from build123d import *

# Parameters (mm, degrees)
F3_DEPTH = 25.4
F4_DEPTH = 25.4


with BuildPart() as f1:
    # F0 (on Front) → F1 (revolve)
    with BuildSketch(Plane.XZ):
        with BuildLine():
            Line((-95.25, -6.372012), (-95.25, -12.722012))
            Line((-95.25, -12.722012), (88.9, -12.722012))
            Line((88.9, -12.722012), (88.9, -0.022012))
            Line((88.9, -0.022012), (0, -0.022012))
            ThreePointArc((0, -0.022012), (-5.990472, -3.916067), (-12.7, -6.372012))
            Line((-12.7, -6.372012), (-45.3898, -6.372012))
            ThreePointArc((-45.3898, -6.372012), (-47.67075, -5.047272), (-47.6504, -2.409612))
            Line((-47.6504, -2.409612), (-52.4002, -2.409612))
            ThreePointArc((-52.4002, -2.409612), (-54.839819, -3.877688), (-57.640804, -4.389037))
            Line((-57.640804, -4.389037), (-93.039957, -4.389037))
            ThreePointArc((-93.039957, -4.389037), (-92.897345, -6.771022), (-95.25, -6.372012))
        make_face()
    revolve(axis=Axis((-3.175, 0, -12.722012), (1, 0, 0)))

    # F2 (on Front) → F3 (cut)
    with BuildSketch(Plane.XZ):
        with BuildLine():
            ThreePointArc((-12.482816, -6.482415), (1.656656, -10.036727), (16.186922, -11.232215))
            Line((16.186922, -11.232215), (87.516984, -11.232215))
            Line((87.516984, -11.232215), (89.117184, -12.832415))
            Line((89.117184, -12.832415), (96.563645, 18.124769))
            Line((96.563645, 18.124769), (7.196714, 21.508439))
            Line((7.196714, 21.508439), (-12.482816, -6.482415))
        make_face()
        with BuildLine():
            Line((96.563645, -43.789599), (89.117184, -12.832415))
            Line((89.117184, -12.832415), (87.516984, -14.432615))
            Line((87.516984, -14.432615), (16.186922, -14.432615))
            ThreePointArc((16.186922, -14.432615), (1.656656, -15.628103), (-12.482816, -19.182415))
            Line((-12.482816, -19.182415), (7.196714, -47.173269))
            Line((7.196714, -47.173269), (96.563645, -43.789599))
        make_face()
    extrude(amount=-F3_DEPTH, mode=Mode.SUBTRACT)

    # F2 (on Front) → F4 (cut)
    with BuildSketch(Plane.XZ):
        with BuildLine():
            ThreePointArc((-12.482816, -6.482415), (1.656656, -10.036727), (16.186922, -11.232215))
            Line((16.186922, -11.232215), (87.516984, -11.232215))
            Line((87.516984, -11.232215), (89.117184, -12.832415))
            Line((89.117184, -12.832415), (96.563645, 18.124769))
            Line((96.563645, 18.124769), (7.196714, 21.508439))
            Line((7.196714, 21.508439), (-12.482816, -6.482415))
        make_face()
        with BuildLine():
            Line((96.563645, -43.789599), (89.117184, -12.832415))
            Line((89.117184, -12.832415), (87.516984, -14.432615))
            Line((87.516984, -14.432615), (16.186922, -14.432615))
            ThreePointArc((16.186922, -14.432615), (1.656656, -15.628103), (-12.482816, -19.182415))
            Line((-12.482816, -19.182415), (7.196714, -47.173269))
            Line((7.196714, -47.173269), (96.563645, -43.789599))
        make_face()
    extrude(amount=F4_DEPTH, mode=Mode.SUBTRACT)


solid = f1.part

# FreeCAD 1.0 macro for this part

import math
import FreeCAD as App
import Part
import Sketcher
from FreeCAD import Vector
Q = App.Units.Quantity

doc = App.newDocument("Part")
body = doc.addObject("PartDesign::Body", "Body")

# Sketch on XZ plane
sketch1 = body.newObject("Sketcher::SketchObject", "Sketch")
sketch1.AttachmentSupport = (doc.getObject("XZ_Plane"), [""])
sketch1.MapMode = "FlatFace"
sketch1.addGeometry(Part.LineSegment(Vector(-95.25, -6.372012, 0), Vector(-95.25, -12.722012, 0)), False)
sketch1.addGeometry(Part.LineSegment(Vector(-95.25, -12.722012, 0), Vector(88.9, -12.722012, 0)), False)
sketch1.addGeometry(Part.LineSegment(Vector(88.9, -12.722012, 0), Vector(88.9, -0.022012, 0)), False)
sketch1.addGeometry(Part.LineSegment(Vector(88.9, -0.022012, 0), Vector(0, -0.022012, 0)), False)
sketch1.addGeometry(Part.ArcOfCircle(Part.Circle(Vector(-20.189501, 24.481989, 0), Vector(0, 0, 1), 31.749992), math.radians(-76.355918), math.radians(-50.513979)), False)
sketch1.addGeometry(Part.LineSegment(Vector(-12.7, -6.372012, 0), Vector(-45.3898, -6.372012, 0)), False)
sketch1.addGeometry(Part.ArcOfCircle(Part.Circle(Vector(-45.3898, -3.745961, 0), Vector(0, 0, 1), 2.626051), math.radians(149.410623), math.radians(270.000002)), False)
sketch1.addGeometry(Part.LineSegment(Vector(-47.6504, -2.409612, 0), Vector(-52.4002, -2.409612, 0)), False)
sketch1.addGeometry(Part.ArcOfCircle(Part.Circle(Vector(-57.640803, 3.538023, 0), Vector(0, 0, 1), 7.92706), math.radians(-90.000008), math.radians(-48.615955)), False)
sketch1.addGeometry(Part.LineSegment(Vector(-57.640804, -4.389037, 0), Vector(-93.039957, -4.389037, 0)), False)
sketch1.addGeometry(Part.ArcOfCircle(Part.Circle(Vector(-93.915127, -5.636696, 0), Vector(0, 0, 1), 1.524), math.radians(-151.151791), math.radians(54.952274)), False)
sketch1.addGeometry(Part.LineSegment(Vector(-95.25, -12.722012, 0), Vector(88.9, -12.722012, 0)), True)  # axis
sketch1.addConstraint(Sketcher.Constraint("Coincident", 0, 2, 1, 1))
sketch1.addConstraint(Sketcher.Constraint("Coincident", 1, 2, 2, 1))
sketch1.addConstraint(Sketcher.Constraint("Coincident", 2, 2, 3, 1))
sketch1.addConstraint(Sketcher.Constraint("Coincident", 3, 2, 4, 2))
sketch1.addConstraint(Sketcher.Constraint("Coincident", 4, 1, 5, 1))
sketch1.addConstraint(Sketcher.Constraint("Tangent", 5, 2, 6, 2))
sketch1.addConstraint(Sketcher.Constraint("Coincident", 6, 1, 7, 1))
sketch1.addConstraint(Sketcher.Constraint("Coincident", 7, 2, 8, 2))
sketch1.addConstraint(Sketcher.Constraint("Tangent", 8, 1, 9, 1))
sketch1.addConstraint(Sketcher.Constraint("Coincident", 9, 2, 10, 2))
sketch1.addConstraint(Sketcher.Constraint("Coincident", 10, 1, 0, 1))
sketch1.addConstraint(Sketcher.Constraint("Vertical", 0))
sketch1.addConstraint(Sketcher.Constraint("Horizontal", 1))
sketch1.addConstraint(Sketcher.Constraint("Vertical", 2))
sketch1.addConstraint(Sketcher.Constraint("Horizontal", 3))
sketch1.addConstraint(Sketcher.Constraint("Horizontal", 5))
sketch1.addConstraint(Sketcher.Constraint("Horizontal", 7))
sketch1.addConstraint(Sketcher.Constraint("Horizontal", 9))
sketch1.addConstraint(Sketcher.Constraint("Horizontal", 11))
sketch1.addConstraint(Sketcher.Constraint("Coincident", 11, 1, 0, 2))
sketch1.addConstraint(Sketcher.Constraint("PointOnObject", 3, 2, -2))
sketch1.addConstraint(Sketcher.Constraint("Horizontal", 5, 2, 10, 1))
sketch1.addConstraint(Sketcher.Constraint("Vertical", 2, 2, 11, 2))
sketch1.addConstraint(Sketcher.Constraint("Radius", 10, Q("0.06 in")))
sketch1.addConstraint(Sketcher.Constraint("DistanceX", 3, 2, 3, 1, Q("3.5 in")))
sketch1.addConstraint(Sketcher.Constraint("DistanceY", 2, 1, 2, 2, Q("0.5 in")))
sketch1.addConstraint(Sketcher.Constraint("DistanceX", 4, 1, 11, 2, Q("4 in")))
sketch1.addConstraint(Sketcher.Constraint("DistanceX", 1, 1, 1, 2, Q("7.25 in")))
sketch1.addConstraint(Sketcher.Constraint("DistanceY", 0, 2, 0, 1, Q("0.25 in")))
sketch1.addConstraint(Sketcher.Constraint("DistanceX", 5, 2, 5, 1, Q("1.287 in")))
sketch1.addConstraint(Sketcher.Constraint("DistanceX", 7, 2, 7, 1, Q("0.187 in")))
sketch1.addConstraint(Sketcher.Constraint("DistanceX", 6, 1, -1, 1, Q("1.876 in")))
sketch1.addConstraint(Sketcher.Constraint("Radius", 6, 2.626051))
sketch1.addConstraint(Sketcher.Constraint("Radius", 8, 7.92706))
sketch1.addConstraint(Sketcher.Constraint("Radius", 4, 31.749992))
sketch1.addConstraint(Sketcher.Constraint("DistanceX", 9, 2, 9, 1, 35.399153))
sketch1.addConstraint(Sketcher.Constraint("DistanceY", -1, 1, 4, 3, 24.481989))
sketch1.addConstraint(Sketcher.Constraint("DistanceY", 10, 3, 8, 3, 9.174719))
revolution = body.newObject("PartDesign::Revolution", "Revolution")
revolution.Profile = sketch1
revolution.ReferenceAxis = (sketch1, ["Axis0"])
revolution.Angle = 360

# Sketch on XZ plane
sketch2 = body.newObject("Sketcher::SketchObject", "Sketch001")
sketch2.AttachmentSupport = (doc.getObject("XZ_Plane"), [""])
sketch2.MapMode = "FlatFace"
sketch2.addGeometry(Part.ArcOfCircle(Part.Circle(Vector(16.186919, 77.66777, 0), Vector(0, 0, 1), 88.899985), math.radians(-108.813834), math.radians(-89.999998)), False)
sketch2.addGeometry(Part.LineSegment(Vector(16.186922, -11.232215, 0), Vector(87.516984, -11.232215, 0)), False)
sketch2.addGeometry(Part.LineSegment(Vector(87.516984, -11.232215, 0), Vector(89.117184, -12.832415, 0)), False)
sketch2.addGeometry(Part.LineSegment(Vector(89.117184, -12.832415, 0), Vector(96.563645, 18.124769, 0)), False)
sketch2.addGeometry(Part.LineSegment(Vector(96.563645, 18.124769, 0), Vector(7.196714, 21.508439, 0)), False)
sketch2.addGeometry(Part.LineSegment(Vector(7.196714, 21.508439, 0), Vector(-12.482816, -6.482415, 0)), False)
sketch2.addGeometry(Part.LineSegment(Vector(96.563645, -43.789599, 0), Vector(89.117184, -12.832415, 0)), False)
sketch2.addGeometry(Part.LineSegment(Vector(89.117184, -12.832415, 0), Vector(87.516984, -14.432615, 0)), False)
sketch2.addGeometry(Part.LineSegment(Vector(87.516984, -14.432615, 0), Vector(16.186922, -14.432615, 0)), False)
sketch2.addGeometry(Part.ArcOfCircle(Part.Circle(Vector(16.186919, -103.3326, 0), Vector(0, 0, 1), 88.899985), math.radians(89.999998), math.radians(108.813834)), False)
sketch2.addGeometry(Part.LineSegment(Vector(-12.482816, -19.182415, 0), Vector(7.196714, -47.173269, 0)), False)
sketch2.addGeometry(Part.LineSegment(Vector(7.196714, -47.173269, 0), Vector(96.563645, -43.789599, 0)), False)
sketch2.addConstraint(Sketcher.Constraint("Tangent", 0, 2, 1, 1))
sketch2.addConstraint(Sketcher.Constraint("Coincident", 1, 2, 2, 1))
sketch2.addConstraint(Sketcher.Constraint("Coincident", 2, 2, 3, 1))
sketch2.addConstraint(Sketcher.Constraint("Coincident", 3, 2, 4, 1))
sketch2.addConstraint(Sketcher.Constraint("Coincident", 4, 2, 5, 1))
sketch2.addConstraint(Sketcher.Constraint("Coincident", 5, 2, 0, 1))
sketch2.addConstraint(Sketcher.Constraint("Coincident", 6, 2, 7, 1))
sketch2.addConstraint(Sketcher.Constraint("Coincident", 7, 2, 8, 1))
sketch2.addConstraint(Sketcher.Constraint("Tangent", 8, 2, 9, 1))
sketch2.addConstraint(Sketcher.Constraint("Coincident", 9, 2, 10, 1))
sketch2.addConstraint(Sketcher.Constraint("Coincident", 10, 2, 11, 1))
sketch2.addConstraint(Sketcher.Constraint("Coincident", 11, 2, 6, 1))
sketch2.addConstraint(Sketcher.Constraint("Horizontal", 1))
sketch2.addConstraint(Sketcher.Constraint("Horizontal", 8))
sketch2.addConstraint(Sketcher.Constraint("Coincident", 6, 2, 2, 2))
sketch2.addConstraint(Sketcher.Constraint("Equal", 0, 9))
sketch2.addConstraint(Sketcher.Constraint("Perpendicular", 2, 7))
sketch2.addConstraint(Sketcher.Constraint("Vertical", 0, 3, 9, 3))
sketch2.addConstraint(Sketcher.Constraint("Vertical", 1, 2, 7, 2))
sketch2.addConstraint(Sketcher.Constraint("Vertical", 5, 2, 9, 2))
sketch2.addConstraint(Sketcher.Constraint("Vertical", 4, 2, 10, 2))
sketch2.addConstraint(Sketcher.Constraint("Vertical", 3, 2, 11, 2))
sketch2.addConstraint(Sketcher.Constraint("Equal", 3, 6))
sketch2.addConstraint(Sketcher.Constraint("Equal", 2, 7))
sketch2.addConstraint(Sketcher.Constraint("Equal", 5, 10))
sketch2.addConstraint(Sketcher.Constraint("DistanceY", 9, 2, 5, 2, Q("0.5 in")))
sketch2.addConstraint(Sketcher.Constraint("DistanceY", 11, 2, -1, 1, Q("1.724 in")))
sketch2.addConstraint(Sketcher.Constraint("DistanceX", 1, 2, 2, 2, Q("0.063 in")))
sketch2.addConstraint(Sketcher.Constraint("DistanceX", 5, 2, 1, 2, Q("3.937 in")))
sketch2.addConstraint(Sketcher.Constraint("Radius", 0, 88.899985))
sketch2.addConstraint(Sketcher.Constraint("DistanceY", 9, 3, -1, 1, 103.3326))
sketch2.addConstraint(Sketcher.Constraint("Distance", 3, 31.840179))
sketch2.addConstraint(Sketcher.Constraint("DistanceX", -1, 1, 0, 3, 16.186919))
sketch2.addConstraint(Sketcher.Constraint("DistanceY", -1, 1, 4, 2, 21.508439))
sketch2.addConstraint(Sketcher.Constraint("DistanceX", 4, 2, 1, 2, 80.32027))
pocket1 = body.newObject("PartDesign::Pocket", "Pocket")
pocket1.Profile = sketch2
pocket1.Length = Q("1 in")

# Sketch on XZ plane
sketch3 = body.newObject("Sketcher::SketchObject", "Sketch002")
sketch3.AttachmentSupport = (doc.getObject("XZ_Plane"), [""])
sketch3.MapMode = "FlatFace"
sketch3.addGeometry(Part.ArcOfCircle(Part.Circle(Vector(16.186919, 77.66777, 0), Vector(0, 0, 1), 88.899985), math.radians(-108.813834), math.radians(-89.999998)), False)
sketch3.addGeometry(Part.LineSegment(Vector(16.186922, -11.232215, 0), Vector(87.516984, -11.232215, 0)), False)
sketch3.addGeometry(Part.LineSegment(Vector(87.516984, -11.232215, 0), Vector(89.117184, -12.832415, 0)), False)
sketch3.addGeometry(Part.LineSegment(Vector(89.117184, -12.832415, 0), Vector(96.563645, 18.124769, 0)), False)
sketch3.addGeometry(Part.LineSegment(Vector(96.563645, 18.124769, 0), Vector(7.196714, 21.508439, 0)), False)
sketch3.addGeometry(Part.LineSegment(Vector(7.196714, 21.508439, 0), Vector(-12.482816, -6.482415, 0)), False)
sketch3.addGeometry(Part.LineSegment(Vector(96.563645, -43.789599, 0), Vector(89.117184, -12.832415, 0)), False)
sketch3.addGeometry(Part.LineSegment(Vector(89.117184, -12.832415, 0), Vector(87.516984, -14.432615, 0)), False)
sketch3.addGeometry(Part.LineSegment(Vector(87.516984, -14.432615, 0), Vector(16.186922, -14.432615, 0)), False)
sketch3.addGeometry(Part.ArcOfCircle(Part.Circle(Vector(16.186919, -103.3326, 0), Vector(0, 0, 1), 88.899985), math.radians(89.999998), math.radians(108.813834)), False)
sketch3.addGeometry(Part.LineSegment(Vector(-12.482816, -19.182415, 0), Vector(7.196714, -47.173269, 0)), False)
sketch3.addGeometry(Part.LineSegment(Vector(7.196714, -47.173269, 0), Vector(96.563645, -43.789599, 0)), False)
sketch3.addConstraint(Sketcher.Constraint("Tangent", 0, 2, 1, 1))
sketch3.addConstraint(Sketcher.Constraint("Coincident", 1, 2, 2, 1))
sketch3.addConstraint(Sketcher.Constraint("Coincident", 2, 2, 3, 1))
sketch3.addConstraint(Sketcher.Constraint("Coincident", 3, 2, 4, 1))
sketch3.addConstraint(Sketcher.Constraint("Coincident", 4, 2, 5, 1))
sketch3.addConstraint(Sketcher.Constraint("Coincident", 5, 2, 0, 1))
sketch3.addConstraint(Sketcher.Constraint("Coincident", 6, 2, 7, 1))
sketch3.addConstraint(Sketcher.Constraint("Coincident", 7, 2, 8, 1))
sketch3.addConstraint(Sketcher.Constraint("Tangent", 8, 2, 9, 1))
sketch3.addConstraint(Sketcher.Constraint("Coincident", 9, 2, 10, 1))
sketch3.addConstraint(Sketcher.Constraint("Coincident", 10, 2, 11, 1))
sketch3.addConstraint(Sketcher.Constraint("Coincident", 11, 2, 6, 1))
sketch3.addConstraint(Sketcher.Constraint("Horizontal", 1))
sketch3.addConstraint(Sketcher.Constraint("Horizontal", 8))
sketch3.addConstraint(Sketcher.Constraint("Coincident", 6, 2, 2, 2))
sketch3.addConstraint(Sketcher.Constraint("Equal", 0, 9))
sketch3.addConstraint(Sketcher.Constraint("Perpendicular", 2, 7))
sketch3.addConstraint(Sketcher.Constraint("Vertical", 0, 3, 9, 3))
sketch3.addConstraint(Sketcher.Constraint("Vertical", 1, 2, 7, 2))
sketch3.addConstraint(Sketcher.Constraint("Vertical", 5, 2, 9, 2))
sketch3.addConstraint(Sketcher.Constraint("Vertical", 4, 2, 10, 2))
sketch3.addConstraint(Sketcher.Constraint("Vertical", 3, 2, 11, 2))
sketch3.addConstraint(Sketcher.Constraint("Equal", 3, 6))
sketch3.addConstraint(Sketcher.Constraint("Equal", 2, 7))
sketch3.addConstraint(Sketcher.Constraint("Equal", 5, 10))
sketch3.addConstraint(Sketcher.Constraint("DistanceY", 9, 2, 5, 2, Q("0.5 in")))
sketch3.addConstraint(Sketcher.Constraint("DistanceY", 11, 2, -1, 1, Q("1.724 in")))
sketch3.addConstraint(Sketcher.Constraint("DistanceX", 1, 2, 2, 2, Q("0.063 in")))
sketch3.addConstraint(Sketcher.Constraint("DistanceX", 5, 2, 1, 2, Q("3.937 in")))
sketch3.addConstraint(Sketcher.Constraint("Radius", 0, 88.899985))
sketch3.addConstraint(Sketcher.Constraint("DistanceY", 9, 3, -1, 1, 103.3326))
sketch3.addConstraint(Sketcher.Constraint("Distance", 3, 31.840179))
sketch3.addConstraint(Sketcher.Constraint("DistanceX", -1, 1, 0, 3, 16.186919))
sketch3.addConstraint(Sketcher.Constraint("DistanceY", -1, 1, 4, 2, 21.508439))
sketch3.addConstraint(Sketcher.Constraint("DistanceX", 4, 2, 1, 2, 80.32027))
pocket2 = body.newObject("PartDesign::Pocket", "Pocket001")
pocket2.Profile = sketch3
pocket2.Length = Q("1 in")
pocket2.Reversed = True

doc.recompute()
